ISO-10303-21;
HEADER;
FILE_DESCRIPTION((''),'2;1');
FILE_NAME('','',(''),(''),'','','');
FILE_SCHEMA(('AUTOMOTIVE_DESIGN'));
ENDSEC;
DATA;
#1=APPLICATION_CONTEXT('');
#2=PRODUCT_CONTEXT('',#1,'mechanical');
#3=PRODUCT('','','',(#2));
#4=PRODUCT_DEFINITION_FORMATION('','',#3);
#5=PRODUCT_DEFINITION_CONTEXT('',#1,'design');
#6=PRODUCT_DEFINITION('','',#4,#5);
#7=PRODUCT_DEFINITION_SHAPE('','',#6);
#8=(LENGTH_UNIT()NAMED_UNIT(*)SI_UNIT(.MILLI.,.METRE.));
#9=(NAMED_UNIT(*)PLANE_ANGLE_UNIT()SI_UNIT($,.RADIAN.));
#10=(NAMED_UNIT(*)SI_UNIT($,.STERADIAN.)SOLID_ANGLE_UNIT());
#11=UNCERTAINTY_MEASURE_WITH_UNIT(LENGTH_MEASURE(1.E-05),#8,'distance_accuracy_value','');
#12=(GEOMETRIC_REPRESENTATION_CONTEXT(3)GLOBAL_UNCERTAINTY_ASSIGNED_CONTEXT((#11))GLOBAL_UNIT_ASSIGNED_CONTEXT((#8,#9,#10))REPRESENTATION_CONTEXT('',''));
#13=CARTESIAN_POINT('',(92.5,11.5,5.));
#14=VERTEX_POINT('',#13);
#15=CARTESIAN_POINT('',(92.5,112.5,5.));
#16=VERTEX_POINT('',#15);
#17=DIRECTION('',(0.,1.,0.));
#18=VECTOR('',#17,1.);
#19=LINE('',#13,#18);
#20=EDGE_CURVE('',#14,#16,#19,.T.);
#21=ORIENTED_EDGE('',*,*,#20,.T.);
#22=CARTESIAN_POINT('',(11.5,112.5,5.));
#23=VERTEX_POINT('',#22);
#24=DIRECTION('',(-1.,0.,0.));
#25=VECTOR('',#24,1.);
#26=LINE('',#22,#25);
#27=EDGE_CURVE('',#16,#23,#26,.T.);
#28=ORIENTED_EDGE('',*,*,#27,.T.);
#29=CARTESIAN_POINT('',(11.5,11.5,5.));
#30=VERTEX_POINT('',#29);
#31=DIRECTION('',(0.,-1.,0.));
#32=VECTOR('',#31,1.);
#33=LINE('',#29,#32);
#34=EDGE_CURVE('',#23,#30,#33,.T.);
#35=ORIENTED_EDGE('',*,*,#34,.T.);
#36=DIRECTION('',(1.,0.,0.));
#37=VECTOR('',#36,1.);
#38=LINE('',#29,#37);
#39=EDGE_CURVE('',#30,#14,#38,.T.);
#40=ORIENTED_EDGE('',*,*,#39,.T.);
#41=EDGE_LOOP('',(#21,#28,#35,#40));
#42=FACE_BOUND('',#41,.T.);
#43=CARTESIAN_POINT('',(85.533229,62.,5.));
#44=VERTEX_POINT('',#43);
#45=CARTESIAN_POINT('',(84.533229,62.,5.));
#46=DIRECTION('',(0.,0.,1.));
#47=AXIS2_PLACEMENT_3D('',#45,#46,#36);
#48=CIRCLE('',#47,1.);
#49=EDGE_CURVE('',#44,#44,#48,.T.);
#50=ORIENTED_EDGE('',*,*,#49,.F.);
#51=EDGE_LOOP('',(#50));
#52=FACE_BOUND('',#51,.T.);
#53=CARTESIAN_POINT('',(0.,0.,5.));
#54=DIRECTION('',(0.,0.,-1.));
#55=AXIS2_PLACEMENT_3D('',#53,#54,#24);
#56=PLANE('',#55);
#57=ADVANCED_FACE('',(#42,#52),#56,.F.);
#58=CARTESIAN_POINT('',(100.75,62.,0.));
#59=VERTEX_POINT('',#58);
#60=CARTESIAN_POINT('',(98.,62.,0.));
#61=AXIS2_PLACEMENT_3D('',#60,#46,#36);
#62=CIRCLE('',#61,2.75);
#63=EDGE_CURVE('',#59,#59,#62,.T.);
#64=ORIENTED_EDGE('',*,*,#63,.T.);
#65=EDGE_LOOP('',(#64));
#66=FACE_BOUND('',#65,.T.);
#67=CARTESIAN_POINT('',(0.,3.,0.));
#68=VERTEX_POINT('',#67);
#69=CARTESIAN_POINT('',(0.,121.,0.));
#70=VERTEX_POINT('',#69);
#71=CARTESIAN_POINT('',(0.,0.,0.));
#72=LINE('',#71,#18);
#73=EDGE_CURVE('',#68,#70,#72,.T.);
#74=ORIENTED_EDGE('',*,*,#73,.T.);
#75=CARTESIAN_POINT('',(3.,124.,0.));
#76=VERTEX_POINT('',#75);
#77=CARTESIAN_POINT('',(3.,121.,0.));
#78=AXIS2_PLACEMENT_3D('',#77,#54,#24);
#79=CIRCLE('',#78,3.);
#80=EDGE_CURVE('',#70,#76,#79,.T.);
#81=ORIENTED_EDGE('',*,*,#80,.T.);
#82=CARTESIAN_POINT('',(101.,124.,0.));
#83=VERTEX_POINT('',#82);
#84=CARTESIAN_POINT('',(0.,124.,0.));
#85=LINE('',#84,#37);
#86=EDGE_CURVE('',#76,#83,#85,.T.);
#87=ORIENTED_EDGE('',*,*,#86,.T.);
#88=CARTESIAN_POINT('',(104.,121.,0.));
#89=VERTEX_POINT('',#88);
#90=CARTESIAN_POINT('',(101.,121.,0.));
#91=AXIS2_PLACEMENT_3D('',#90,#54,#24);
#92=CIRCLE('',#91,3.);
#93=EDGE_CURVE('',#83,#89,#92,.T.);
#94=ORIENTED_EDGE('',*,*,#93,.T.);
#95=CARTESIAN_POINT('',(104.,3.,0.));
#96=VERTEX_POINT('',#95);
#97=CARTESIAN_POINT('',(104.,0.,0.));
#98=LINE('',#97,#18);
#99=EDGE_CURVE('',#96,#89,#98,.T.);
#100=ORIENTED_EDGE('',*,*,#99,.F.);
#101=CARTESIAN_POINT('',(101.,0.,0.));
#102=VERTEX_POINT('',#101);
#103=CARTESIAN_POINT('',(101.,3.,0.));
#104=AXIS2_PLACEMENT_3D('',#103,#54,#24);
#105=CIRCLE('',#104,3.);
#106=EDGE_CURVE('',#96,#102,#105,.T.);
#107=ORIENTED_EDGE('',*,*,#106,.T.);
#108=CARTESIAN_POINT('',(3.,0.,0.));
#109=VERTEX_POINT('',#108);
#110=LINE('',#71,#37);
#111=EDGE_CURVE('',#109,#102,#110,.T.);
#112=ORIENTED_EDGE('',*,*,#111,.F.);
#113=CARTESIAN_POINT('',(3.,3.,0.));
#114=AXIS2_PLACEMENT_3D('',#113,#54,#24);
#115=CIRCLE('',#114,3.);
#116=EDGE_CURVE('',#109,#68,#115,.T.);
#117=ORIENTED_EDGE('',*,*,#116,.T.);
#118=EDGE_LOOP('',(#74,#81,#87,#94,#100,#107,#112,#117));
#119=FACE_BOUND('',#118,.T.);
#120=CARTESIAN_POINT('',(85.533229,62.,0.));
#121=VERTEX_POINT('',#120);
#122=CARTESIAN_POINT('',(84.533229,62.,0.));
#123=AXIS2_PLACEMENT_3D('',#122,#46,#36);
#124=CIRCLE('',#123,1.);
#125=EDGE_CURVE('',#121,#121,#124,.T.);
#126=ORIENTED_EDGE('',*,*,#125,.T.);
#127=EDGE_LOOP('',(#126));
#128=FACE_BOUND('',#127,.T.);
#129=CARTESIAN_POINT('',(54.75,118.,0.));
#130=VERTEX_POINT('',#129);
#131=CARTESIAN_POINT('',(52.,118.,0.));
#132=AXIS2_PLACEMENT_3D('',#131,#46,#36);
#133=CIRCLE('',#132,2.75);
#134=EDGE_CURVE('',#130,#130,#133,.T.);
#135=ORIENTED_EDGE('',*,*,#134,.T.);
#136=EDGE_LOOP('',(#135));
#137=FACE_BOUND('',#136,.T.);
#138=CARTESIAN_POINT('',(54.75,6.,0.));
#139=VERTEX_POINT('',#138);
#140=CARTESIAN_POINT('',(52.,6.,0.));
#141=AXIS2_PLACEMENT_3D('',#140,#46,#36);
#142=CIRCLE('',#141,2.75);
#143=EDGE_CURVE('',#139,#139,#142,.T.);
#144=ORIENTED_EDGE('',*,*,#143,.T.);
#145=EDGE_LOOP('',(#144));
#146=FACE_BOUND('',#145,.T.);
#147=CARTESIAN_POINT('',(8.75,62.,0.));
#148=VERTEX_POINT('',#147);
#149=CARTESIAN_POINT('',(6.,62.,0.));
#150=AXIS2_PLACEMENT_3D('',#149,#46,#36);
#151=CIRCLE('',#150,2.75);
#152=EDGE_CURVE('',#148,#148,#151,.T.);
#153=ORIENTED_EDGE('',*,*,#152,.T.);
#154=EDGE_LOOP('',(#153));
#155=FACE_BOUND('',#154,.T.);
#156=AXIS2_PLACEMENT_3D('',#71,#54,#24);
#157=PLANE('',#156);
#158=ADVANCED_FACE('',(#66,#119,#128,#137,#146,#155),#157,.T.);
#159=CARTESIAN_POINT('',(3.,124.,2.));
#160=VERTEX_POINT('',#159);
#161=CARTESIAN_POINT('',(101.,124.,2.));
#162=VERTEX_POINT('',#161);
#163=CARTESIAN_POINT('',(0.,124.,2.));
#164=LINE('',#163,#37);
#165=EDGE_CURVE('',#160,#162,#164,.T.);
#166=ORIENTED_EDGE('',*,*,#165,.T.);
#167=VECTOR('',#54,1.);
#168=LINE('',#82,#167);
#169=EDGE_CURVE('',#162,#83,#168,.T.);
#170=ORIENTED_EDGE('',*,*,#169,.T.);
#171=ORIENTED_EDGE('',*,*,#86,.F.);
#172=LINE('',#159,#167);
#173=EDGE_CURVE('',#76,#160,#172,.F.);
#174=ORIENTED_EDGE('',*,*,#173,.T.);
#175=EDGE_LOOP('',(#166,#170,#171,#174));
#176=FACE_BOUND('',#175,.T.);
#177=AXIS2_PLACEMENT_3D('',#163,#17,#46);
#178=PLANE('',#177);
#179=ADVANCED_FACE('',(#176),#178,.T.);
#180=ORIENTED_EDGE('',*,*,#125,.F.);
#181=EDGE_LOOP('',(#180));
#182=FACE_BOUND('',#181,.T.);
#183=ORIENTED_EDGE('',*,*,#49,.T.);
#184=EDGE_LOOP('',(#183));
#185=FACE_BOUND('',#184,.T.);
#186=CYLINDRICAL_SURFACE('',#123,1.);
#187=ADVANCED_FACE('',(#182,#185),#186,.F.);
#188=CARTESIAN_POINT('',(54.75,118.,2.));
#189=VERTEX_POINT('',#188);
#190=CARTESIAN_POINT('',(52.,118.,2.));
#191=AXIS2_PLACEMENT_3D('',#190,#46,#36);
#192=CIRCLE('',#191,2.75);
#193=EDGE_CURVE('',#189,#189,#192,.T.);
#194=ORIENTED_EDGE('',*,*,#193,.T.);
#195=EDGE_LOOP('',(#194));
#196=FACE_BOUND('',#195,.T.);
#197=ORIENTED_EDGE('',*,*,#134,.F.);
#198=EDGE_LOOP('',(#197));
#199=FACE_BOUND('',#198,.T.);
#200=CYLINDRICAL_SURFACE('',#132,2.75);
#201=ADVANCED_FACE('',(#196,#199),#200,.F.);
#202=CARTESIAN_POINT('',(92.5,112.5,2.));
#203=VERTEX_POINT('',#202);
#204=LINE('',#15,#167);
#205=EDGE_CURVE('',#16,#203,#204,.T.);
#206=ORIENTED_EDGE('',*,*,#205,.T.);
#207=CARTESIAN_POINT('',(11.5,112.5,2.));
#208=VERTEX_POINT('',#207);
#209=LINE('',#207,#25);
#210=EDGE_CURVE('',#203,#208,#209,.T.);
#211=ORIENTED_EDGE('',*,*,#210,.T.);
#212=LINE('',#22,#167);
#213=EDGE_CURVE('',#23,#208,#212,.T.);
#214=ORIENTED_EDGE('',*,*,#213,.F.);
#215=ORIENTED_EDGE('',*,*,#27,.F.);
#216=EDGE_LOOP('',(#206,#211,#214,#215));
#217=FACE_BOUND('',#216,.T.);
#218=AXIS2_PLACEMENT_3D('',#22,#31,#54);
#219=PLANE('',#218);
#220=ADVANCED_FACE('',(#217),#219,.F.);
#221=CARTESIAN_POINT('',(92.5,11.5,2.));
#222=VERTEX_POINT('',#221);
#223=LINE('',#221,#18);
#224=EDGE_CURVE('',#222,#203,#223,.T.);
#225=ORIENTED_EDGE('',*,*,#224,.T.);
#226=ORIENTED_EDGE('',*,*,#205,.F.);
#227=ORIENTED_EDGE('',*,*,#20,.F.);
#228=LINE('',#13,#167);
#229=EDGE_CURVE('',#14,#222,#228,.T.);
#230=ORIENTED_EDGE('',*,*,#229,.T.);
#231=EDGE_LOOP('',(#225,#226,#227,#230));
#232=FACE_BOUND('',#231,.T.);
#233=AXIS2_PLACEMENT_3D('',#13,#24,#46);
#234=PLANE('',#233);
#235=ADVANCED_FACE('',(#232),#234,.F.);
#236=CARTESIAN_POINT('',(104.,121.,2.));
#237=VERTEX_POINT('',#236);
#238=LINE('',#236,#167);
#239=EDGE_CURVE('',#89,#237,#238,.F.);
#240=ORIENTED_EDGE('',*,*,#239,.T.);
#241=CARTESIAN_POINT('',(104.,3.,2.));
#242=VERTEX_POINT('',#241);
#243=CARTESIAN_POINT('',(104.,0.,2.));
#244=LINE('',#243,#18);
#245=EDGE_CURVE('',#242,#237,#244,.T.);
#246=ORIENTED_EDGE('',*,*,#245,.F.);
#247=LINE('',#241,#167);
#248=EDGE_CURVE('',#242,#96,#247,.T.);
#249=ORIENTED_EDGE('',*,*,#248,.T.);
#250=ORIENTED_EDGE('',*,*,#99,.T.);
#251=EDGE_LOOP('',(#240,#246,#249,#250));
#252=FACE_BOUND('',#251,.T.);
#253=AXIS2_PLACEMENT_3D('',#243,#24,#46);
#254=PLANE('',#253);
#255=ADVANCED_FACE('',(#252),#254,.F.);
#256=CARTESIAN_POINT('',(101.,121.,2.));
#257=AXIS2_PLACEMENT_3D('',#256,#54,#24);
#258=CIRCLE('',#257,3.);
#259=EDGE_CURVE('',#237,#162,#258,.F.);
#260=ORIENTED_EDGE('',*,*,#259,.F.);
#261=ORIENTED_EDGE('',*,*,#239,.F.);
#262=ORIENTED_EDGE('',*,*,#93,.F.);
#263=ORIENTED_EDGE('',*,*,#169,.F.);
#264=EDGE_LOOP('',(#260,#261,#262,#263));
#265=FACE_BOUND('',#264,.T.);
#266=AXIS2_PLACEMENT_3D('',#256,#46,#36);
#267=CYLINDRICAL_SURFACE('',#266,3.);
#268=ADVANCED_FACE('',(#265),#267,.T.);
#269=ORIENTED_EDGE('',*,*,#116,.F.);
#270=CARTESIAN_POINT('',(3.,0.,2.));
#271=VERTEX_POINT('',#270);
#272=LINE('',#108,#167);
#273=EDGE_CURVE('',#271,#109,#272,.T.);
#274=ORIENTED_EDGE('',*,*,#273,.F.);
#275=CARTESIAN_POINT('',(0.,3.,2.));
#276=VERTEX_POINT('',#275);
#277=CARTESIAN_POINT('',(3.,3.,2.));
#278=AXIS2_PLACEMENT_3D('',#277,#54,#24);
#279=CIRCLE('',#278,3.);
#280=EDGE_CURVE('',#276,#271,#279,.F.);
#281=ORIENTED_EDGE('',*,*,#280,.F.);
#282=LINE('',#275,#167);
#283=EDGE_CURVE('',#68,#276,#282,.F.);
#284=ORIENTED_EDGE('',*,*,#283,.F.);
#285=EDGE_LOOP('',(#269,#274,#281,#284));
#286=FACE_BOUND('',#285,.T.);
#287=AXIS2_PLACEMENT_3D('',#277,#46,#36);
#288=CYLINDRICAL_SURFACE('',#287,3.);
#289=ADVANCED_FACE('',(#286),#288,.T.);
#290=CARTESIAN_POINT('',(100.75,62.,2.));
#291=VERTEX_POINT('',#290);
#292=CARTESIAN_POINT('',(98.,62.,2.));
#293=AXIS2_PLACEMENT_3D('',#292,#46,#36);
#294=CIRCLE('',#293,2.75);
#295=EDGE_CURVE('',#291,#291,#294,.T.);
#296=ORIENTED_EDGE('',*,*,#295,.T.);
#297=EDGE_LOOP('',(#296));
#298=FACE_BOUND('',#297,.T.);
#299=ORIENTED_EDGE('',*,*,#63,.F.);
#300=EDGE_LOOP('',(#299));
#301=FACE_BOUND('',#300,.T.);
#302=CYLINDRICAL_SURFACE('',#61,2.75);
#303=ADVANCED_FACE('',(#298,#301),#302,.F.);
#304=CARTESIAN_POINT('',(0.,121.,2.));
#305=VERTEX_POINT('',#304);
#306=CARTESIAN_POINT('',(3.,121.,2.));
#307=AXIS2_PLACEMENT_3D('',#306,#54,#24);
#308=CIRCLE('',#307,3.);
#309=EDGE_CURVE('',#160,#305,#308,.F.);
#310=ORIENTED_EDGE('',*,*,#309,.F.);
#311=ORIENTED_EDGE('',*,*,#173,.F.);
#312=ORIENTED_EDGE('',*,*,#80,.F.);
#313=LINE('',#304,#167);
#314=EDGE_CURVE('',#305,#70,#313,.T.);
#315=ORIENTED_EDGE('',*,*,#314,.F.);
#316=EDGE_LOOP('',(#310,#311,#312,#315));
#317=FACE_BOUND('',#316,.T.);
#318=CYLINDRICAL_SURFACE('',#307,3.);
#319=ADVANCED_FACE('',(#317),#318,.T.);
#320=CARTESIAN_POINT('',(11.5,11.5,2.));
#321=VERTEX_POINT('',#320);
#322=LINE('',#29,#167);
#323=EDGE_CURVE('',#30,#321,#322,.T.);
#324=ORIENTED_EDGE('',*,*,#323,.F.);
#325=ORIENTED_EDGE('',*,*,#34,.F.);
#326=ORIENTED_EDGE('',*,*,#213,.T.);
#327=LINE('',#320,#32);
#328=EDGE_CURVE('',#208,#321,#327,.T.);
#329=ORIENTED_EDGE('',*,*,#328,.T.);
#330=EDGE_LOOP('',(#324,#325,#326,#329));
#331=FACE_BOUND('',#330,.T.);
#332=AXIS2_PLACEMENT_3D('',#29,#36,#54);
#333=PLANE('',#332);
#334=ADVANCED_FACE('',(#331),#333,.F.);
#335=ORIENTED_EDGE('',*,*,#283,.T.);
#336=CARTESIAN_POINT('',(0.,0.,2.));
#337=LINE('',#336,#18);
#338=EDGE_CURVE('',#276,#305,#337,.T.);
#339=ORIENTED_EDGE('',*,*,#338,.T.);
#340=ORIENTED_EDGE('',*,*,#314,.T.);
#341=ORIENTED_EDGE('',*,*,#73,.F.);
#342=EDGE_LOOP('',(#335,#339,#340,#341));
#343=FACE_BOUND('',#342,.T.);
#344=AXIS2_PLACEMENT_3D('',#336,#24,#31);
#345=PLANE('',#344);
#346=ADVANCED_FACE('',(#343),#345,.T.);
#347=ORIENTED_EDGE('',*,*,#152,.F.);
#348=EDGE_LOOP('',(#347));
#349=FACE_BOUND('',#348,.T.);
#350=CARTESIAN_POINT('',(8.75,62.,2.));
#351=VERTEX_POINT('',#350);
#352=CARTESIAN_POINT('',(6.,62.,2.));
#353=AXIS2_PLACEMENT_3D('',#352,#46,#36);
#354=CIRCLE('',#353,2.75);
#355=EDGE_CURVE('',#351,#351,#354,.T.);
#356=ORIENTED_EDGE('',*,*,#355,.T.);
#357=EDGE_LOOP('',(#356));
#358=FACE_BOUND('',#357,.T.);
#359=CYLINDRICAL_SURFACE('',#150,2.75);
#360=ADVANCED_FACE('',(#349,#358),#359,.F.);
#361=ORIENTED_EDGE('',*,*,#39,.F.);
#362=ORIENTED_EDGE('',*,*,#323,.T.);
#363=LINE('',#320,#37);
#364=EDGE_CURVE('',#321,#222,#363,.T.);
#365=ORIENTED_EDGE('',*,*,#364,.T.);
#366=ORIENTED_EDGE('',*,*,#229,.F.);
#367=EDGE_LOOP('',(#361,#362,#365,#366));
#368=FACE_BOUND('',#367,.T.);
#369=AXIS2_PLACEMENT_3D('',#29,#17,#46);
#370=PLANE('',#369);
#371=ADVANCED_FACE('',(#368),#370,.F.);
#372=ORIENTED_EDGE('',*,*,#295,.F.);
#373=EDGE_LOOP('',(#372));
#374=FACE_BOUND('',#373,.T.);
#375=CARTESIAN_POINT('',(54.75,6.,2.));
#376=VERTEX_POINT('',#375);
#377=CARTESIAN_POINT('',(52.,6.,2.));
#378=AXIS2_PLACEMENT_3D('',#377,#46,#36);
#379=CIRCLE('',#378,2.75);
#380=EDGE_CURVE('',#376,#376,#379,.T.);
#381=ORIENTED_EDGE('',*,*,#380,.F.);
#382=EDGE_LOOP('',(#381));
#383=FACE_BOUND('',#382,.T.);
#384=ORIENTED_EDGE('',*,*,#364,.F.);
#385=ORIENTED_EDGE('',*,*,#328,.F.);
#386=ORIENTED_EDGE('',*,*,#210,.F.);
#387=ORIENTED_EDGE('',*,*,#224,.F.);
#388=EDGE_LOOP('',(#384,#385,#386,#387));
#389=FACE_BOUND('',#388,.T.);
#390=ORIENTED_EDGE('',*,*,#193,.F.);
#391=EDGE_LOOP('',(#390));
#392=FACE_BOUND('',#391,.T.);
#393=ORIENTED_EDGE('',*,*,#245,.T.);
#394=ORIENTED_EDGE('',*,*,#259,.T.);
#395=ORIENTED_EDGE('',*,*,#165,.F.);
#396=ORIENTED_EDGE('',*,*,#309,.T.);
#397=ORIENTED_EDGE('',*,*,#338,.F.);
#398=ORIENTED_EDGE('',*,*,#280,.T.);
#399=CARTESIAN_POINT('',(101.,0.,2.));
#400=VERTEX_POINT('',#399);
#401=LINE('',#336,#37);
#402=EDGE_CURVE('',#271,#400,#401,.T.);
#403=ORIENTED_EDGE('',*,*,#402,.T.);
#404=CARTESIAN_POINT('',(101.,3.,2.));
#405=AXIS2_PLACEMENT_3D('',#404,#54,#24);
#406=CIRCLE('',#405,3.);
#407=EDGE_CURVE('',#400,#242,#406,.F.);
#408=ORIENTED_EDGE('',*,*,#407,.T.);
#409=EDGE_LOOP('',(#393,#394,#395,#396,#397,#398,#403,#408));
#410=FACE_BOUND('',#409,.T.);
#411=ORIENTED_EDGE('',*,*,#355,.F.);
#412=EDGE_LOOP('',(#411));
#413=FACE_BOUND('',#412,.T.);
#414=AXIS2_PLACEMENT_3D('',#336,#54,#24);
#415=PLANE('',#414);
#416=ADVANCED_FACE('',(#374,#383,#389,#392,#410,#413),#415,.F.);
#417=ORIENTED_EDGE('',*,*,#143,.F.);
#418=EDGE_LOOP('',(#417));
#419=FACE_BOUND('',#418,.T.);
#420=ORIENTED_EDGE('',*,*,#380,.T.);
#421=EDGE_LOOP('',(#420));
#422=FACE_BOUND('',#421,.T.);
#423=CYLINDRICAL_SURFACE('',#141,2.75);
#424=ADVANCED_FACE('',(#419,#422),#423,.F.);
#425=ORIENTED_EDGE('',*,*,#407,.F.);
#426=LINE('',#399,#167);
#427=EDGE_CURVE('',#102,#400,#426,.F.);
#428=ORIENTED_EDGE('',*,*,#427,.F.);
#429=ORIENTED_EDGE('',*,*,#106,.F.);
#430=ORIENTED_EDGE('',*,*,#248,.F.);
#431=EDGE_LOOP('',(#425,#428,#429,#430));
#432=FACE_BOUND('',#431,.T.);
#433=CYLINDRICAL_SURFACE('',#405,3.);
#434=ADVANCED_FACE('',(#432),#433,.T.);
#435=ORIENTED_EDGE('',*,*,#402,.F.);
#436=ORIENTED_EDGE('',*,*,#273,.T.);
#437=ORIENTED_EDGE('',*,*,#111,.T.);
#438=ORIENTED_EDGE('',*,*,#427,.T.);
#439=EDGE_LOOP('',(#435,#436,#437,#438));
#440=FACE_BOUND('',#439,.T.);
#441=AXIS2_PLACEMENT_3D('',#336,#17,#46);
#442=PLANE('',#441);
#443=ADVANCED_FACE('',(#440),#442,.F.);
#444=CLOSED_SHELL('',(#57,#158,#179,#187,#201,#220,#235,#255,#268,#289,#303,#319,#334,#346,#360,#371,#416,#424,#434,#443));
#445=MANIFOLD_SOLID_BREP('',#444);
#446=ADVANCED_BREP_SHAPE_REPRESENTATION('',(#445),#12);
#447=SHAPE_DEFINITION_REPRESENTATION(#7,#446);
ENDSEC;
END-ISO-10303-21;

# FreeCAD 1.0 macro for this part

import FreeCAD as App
import Part
import Sketcher
from FreeCAD import Vector


def edges_at(feature, points):
    """Names of the edges that pass closest to the given points."""
    edges = feature.Shape.Edges
    near = lambda p: min(range(len(edges)), key=lambda i: edges[i].distToShape(Part.Vertex(*p))[0])
    return sorted({f"Edge{near(p) + 1}" for p in points})

doc = App.newDocument("Part")
body = doc.addObject("PartDesign::Body", "Body")

# Sketch on XY plane
sketch1 = doc.addObject("Sketcher::SketchObject", "Sketch")
body.addObject(sketch1)
sketch1.AttachmentSupport = (doc.XY_Plane, [""])
sketch1.MapMode = "FlatFace"
sketch1.addGeometry(Part.LineSegment(Vector(0, 124, 0), Vector(0, 0, 0)), False)
sketch1.addGeometry(Part.LineSegment(Vector(0, 0, 0), Vector(104, 0, 0)), False)
sketch1.addGeometry(Part.LineSegment(Vector(104, 0, 0), Vector(104, 124, 0)), False)
sketch1.addGeometry(Part.LineSegment(Vector(104, 124, 0), Vector(0, 124, 0)), False)
sketch1.addConstraint(Sketcher.Constraint("Coincident", 0, 2, 1, 1))
sketch1.addConstraint(Sketcher.Constraint("Coincident", 1, 2, 2, 1))
sketch1.addConstraint(Sketcher.Constraint("Coincident", 2, 2, 3, 1))
sketch1.addConstraint(Sketcher.Constraint("Coincident", 3, 2, 0, 1))
sketch1.addConstraint(Sketcher.Constraint("Vertical", 0))
sketch1.addConstraint(Sketcher.Constraint("Horizontal", 1))
sketch1.addConstraint(Sketcher.Constraint("Vertical", 2))
sketch1.addConstraint(Sketcher.Constraint("Horizontal", 3))
sketch1.addConstraint(Sketcher.Constraint("Coincident", 0, 2, -1, 1))
sketch1.addConstraint(Sketcher.Constraint("DistanceX", 1, 1, 1, 2, 104.0))
sketch1.addConstraint(Sketcher.Constraint("DistanceY", 0, 2, 0, 1, 124.0))
pad1 = doc.addObject("PartDesign::Pad", "Pad")
body.addObject(pad1)
pad1.Profile = sketch1
pad1.Length = 2

# Sketch on XY plane
sketch2 = doc.addObject("Sketcher::SketchObject", "Sketch001")
body.addObject(sketch2)
sketch2.AttachmentSupport = (doc.XY_Plane, [""])
sketch2.MapMode = "FlatFace"
sketch2.AttachmentOffset = App.Placement(Vector(0, 0, 2), App.Rotation())
sketch2.addGeometry(Part.LineSegment(Vector(12, 112, 0), Vector(12, 12, 0)), False)
sketch2.addGeometry(Part.LineSegment(Vector(12, 12, 0), Vector(92, 12, 0)), False)
sketch2.addGeometry(Part.LineSegment(Vector(92, 12, 0), Vector(92, 112, 0)), False)
sketch2.addGeometry(Part.LineSegment(Vector(92, 112, 0), Vector(12, 112, 0)), False)
sketch2.addConstraint(Sketcher.Constraint("Coincident", 0, 2, 1, 1))
sketch2.addConstraint(Sketcher.Constraint("Coincident", 1, 2, 2, 1))
sketch2.addConstraint(Sketcher.Constraint("Coincident", 2, 2, 3, 1))
sketch2.addConstraint(Sketcher.Constraint("Coincident", 3, 2, 0, 1))
sketch2.addConstraint(Sketcher.Constraint("Vertical", 0))
sketch2.addConstraint(Sketcher.Constraint("Horizontal", 1))
sketch2.addConstraint(Sketcher.Constraint("Vertical", 2))
sketch2.addConstraint(Sketcher.Constraint("Horizontal", 3))
sketch2.addConstraint(Sketcher.Constraint("DistanceX", 1, 1, 1, 2, 81.0))
sketch2.addConstraint(Sketcher.Constraint("DistanceY", 0, 2, 0, 1, 101.0))
sketch2.addConstraint(Sketcher.Constraint("DistanceX", -1, 1, 0, 2, 11.5))
sketch2.addConstraint(Sketcher.Constraint("DistanceY", -1, 1, 0, 2, 11.5))
pad2 = doc.addObject("PartDesign::Pad", "Pad001")
body.addObject(pad2)
pad2.Profile = sketch2
pad2.Length = 3

# Sketch on XY plane
sketch3 = doc.addObject("Sketcher::SketchObject", "Sketch002")
body.addObject(sketch3)
sketch3.AttachmentSupport = (doc.XY_Plane, [""])
sketch3.MapMode = "FlatFace"
sketch3.AttachmentOffset = App.Placement(Vector(0, 0, 5), App.Rotation())
sketch3.addGeometry(Part.Circle(Vector(84.5, 62, 0), Vector(0, 0, 1), 1), False)
sketch3.addConstraint(Sketcher.Constraint("Diameter", 0, 2.0))
sketch3.addConstraint(Sketcher.Constraint("DistanceY", -1, 1, 0, 3, 62.0))
sketch3.addConstraint(Sketcher.Constraint("DistanceX", -1, 1, 0, 3, 84.533229))
pocket1 = doc.addObject("PartDesign::Pocket", "Pocket")
body.addObject(pocket1)
pocket1.Profile = sketch3
pocket1.Type = "ThroughAll"
doc.recompute()

fillet = doc.addObject("PartDesign::Fillet", "Fillet")
body.addObject(fillet)
fillet.Base = (pocket1, edges_at(pocket1, [
    (0, 0, 1),
    (104, 0, 1),
    (104, 124, 1),
    (0, 124, 1),
]))
fillet.Radius = 3

# Sketch on XY plane
sketch4 = doc.addObject("Sketcher::SketchObject", "Sketch003")
body.addObject(sketch4)
sketch4.AttachmentSupport = (doc.XY_Plane, [""])
sketch4.MapMode = "FlatFace"
sketch4.AttachmentOffset = App.Placement(Vector(0, 0, 2), App.Rotation())
sketch4.addGeometry(Part.Circle(Vector(98, 62, 0), Vector(0, 0, 1), 2.8), False)
sketch4.addGeometry(Part.Circle(Vector(6, 62, 0), Vector(0, 0, 1), 2.8), False)
sketch4.addConstraint(Sketcher.Constraint("Equal", 0, 1))
sketch4.addConstraint(Sketcher.Constraint("Horizontal", 0, 3, 1, 3))
sketch4.addConstraint(Sketcher.Constraint("Diameter", 0, 5.5))
sketch4.addConstraint(Sketcher.Constraint("DistanceX", -1, 1, 0, 3, 98.0))
sketch4.addConstraint(Sketcher.Constraint("DistanceY", -1, 1, 0, 3, 62.0))
sketch4.addConstraint(Sketcher.Constraint("DistanceX", -1, 1, 1, 3, 6.0))
pocket2 = doc.addObject("PartDesign::Pocket", "Pocket001")
body.addObject(pocket2)
pocket2.Profile = sketch4
pocket2.Type = "ThroughAll"

# Sketch on XY plane
sketch5 = doc.addObject("Sketcher::SketchObject", "Sketch004")
body.addObject(sketch5)
sketch5.AttachmentSupport = (doc.XY_Plane, [""])
sketch5.MapMode = "FlatFace"
sketch5.AttachmentOffset = App.Placement(Vector(0, 0, 2), App.Rotation())
sketch5.addGeometry(Part.Circle(Vector(52, 6, 0), Vector(0, 0, 1), 2.8), False)
sketch5.addGeometry(Part.Circle(Vector(52, 118, 0), Vector(0, 0, 1), 2.8), False)
sketch5.addConstraint(Sketcher.Constraint("Equal", 0, 1))
sketch5.addConstraint(Sketcher.Constraint("Vertical", 0, 3, 1, 3))
sketch5.addConstraint(Sketcher.Constraint("Diameter", 0, 5.5))
sketch5.addConstraint(Sketcher.Constraint("DistanceX", -1, 1, 0, 3, 52.0))
sketch5.addConstraint(Sketcher.Constraint("DistanceY", -1, 1, 0, 3, 6.0))
sketch5.addConstraint(Sketcher.Constraint("DistanceY", -1, 1, 1, 3, 118.0))
pocket3 = doc.addObject("PartDesign::Pocket", "Pocket002")
body.addObject(pocket3)
pocket3.Profile = sketch5
pocket3.Type = "ThroughAll"

doc.recompute()
